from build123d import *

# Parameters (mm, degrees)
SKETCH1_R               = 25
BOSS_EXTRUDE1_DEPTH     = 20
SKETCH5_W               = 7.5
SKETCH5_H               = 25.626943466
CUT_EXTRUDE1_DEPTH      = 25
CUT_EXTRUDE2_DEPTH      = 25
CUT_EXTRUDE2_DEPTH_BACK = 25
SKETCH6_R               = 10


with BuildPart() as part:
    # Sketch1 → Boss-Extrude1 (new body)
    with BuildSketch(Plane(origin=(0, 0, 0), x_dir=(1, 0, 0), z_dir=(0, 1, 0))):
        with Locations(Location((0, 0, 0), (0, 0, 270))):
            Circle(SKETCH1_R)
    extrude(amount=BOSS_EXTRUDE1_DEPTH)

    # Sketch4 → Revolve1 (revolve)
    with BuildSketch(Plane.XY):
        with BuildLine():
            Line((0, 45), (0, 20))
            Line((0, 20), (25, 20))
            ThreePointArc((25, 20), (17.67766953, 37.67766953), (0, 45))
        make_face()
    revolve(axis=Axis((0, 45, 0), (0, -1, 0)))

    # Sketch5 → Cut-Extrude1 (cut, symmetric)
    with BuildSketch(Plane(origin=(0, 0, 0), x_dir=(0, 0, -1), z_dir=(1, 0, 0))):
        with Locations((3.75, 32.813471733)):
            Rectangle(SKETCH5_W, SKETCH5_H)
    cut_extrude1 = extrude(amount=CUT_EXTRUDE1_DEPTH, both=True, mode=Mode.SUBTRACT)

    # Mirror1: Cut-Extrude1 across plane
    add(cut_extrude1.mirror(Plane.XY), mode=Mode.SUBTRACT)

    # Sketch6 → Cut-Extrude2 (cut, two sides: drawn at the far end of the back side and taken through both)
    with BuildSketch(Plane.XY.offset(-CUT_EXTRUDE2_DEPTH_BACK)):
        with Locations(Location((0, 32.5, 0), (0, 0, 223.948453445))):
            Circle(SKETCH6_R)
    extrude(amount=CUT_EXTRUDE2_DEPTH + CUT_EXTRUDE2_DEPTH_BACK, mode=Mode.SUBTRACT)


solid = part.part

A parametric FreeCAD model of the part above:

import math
import FreeCAD as App
import Part
import Sketcher

V = App.Vector

doc = App.newDocument("Part")
body = doc.addObject("PartDesign::Body", "Body")

sketch1 = body.newObject("Sketcher::SketchObject", "Sketch")
sketch1.AttachmentSupport = (doc.getObject("XZ_Plane"), [""])
sketch1.MapMode = "FlatFace"
sketch1.addGeometry(Part.Circle(V(0, 0, 0), V(0, 0, 1), 25), False)
sketch1.addConstraint([
    Sketcher.Constraint("Coincident", 0, 3, -1, 1),
    Sketcher.Constraint("Diameter", 0, 50.0),
])
pad1 = body.newObject("PartDesign::Pad", "Pad")
pad1.Profile = sketch1
pad1.Length = 20
pad1.Reversed = True

sketch2 = body.newObject("Sketcher::SketchObject", "Sketch001")
sketch2.AttachmentSupport = (doc.getObject("XY_Plane"), [""])
sketch2.MapMode = "FlatFace"
sketch2.addGeometry([
    Part.LineSegment(V(0, 45, 0), V(0, 20, 0)),
    Part.LineSegment(V(0, 20, 0), V(25, 20, 0)),
    Part.ArcOfCircle(Part.Circle(V(0, 20, 0), V(0, 0, 1), 25), math.radians(0), math.radians(90)),
], False)
sketch2.addConstraint([
    Sketcher.Constraint("Coincident", 0, 2, 1, 1),
    Sketcher.Constraint("Coincident", 1, 2, 2, 1),
    Sketcher.Constraint("Coincident", 2, 2, 0, 1),
    Sketcher.Constraint("Vertical", 0),
    Sketcher.Constraint("Horizontal", 1),
    Sketcher.Constraint("Coincident", 0, 2, 2, 3),
    Sketcher.Constraint("PointOnObject", 2, 3, -2),
    Sketcher.Constraint("Radius", 2, 25.0),
    Sketcher.Constraint("DistanceY", -1, 1, 2, 3, 20.0),
])
revolution = body.newObject("PartDesign::Revolution", "Revolution")
revolution.Profile = sketch2
revolution.ReferenceAxis = (sketch2, ["V_Axis"])
revolution.Angle = 360

sketch3 = body.newObject("Sketcher::SketchObject", "Sketch002")
sketch3.AttachmentSupport = (doc.getObject("YZ_Plane"), [""])
sketch3.MapMode = "FlatFace"
sketch3.addGeometry([
    Part.LineSegment(V(45.626943, 0, 0), V(20, 0, 0)),
    Part.LineSegment(V(20, 0, 0), V(20, -7.5, 0)),
    Part.LineSegment(V(20, -7.5, 0), V(45.626943, -7.5, 0)),
    Part.LineSegment(V(45.626943, -7.5, 0), V(45.626943, 0, 0)),
], False)
sketch3.addConstraint([
    Sketcher.Constraint("Coincident", 0, 2, 1, 1),
    Sketcher.Constraint("Coincident", 1, 2, 2, 1),
    Sketcher.Constraint("Coincident", 2, 2, 3, 1),
    Sketcher.Constraint("Coincident", 3, 2, 0, 1),
    Sketcher.Constraint("Horizontal", 0),
    Sketcher.Constraint("Vertical", 1),
    Sketcher.Constraint("Horizontal", 2),
    Sketcher.Constraint("Vertical", 3),
    Sketcher.Constraint("PointOnObject", 0, 2, -1),
    Sketcher.Constraint("DistanceY", 1, 2, 1, 1, 7.5),
    Sketcher.Constraint("DistanceX", -1, 1, 0, 2, 20.0),
    Sketcher.Constraint("DistanceX", 0, 2, 0, 1, 25.626943),
])
pocket1 = body.newObject("PartDesign::Pocket", "Pocket")
pocket1.Profile = sketch3
pocket1.Length = 50
pocket1.Midplane = True
doc.recompute()

mirrored = body.newObject("PartDesign::Mirrored", "Mirrored")
mirrored.Originals = [pocket1]
mirrored.MirrorPlane = (doc.getObject("XY_Plane"), [""])
body.Tip = mirrored

sketch4 = body.newObject("Sketcher::SketchObject", "Sketch003")
sketch4.AttachmentSupport = (doc.getObject("XY_Plane"), [""])
sketch4.MapMode = "FlatFace"
sketch4.addGeometry(Part.Circle(V(0, 32.5, 0), V(0, 0, 1), 10), False)
sketch4.addConstraint([
    Sketcher.Constraint("PointOnObject", 0, 3, -2),
    Sketcher.Constraint("Diameter", 0, 20.0),
    Sketcher.Constraint("DistanceY", -1, 1, 0, 3, 32.5),
])
pocket2 = body.newObject("PartDesign::Pocket", "Pocket001")
pocket2.Profile = sketch4
pocket2.Type = "ThroughAll"
pocket2.Midplane = True

doc.recompute()
